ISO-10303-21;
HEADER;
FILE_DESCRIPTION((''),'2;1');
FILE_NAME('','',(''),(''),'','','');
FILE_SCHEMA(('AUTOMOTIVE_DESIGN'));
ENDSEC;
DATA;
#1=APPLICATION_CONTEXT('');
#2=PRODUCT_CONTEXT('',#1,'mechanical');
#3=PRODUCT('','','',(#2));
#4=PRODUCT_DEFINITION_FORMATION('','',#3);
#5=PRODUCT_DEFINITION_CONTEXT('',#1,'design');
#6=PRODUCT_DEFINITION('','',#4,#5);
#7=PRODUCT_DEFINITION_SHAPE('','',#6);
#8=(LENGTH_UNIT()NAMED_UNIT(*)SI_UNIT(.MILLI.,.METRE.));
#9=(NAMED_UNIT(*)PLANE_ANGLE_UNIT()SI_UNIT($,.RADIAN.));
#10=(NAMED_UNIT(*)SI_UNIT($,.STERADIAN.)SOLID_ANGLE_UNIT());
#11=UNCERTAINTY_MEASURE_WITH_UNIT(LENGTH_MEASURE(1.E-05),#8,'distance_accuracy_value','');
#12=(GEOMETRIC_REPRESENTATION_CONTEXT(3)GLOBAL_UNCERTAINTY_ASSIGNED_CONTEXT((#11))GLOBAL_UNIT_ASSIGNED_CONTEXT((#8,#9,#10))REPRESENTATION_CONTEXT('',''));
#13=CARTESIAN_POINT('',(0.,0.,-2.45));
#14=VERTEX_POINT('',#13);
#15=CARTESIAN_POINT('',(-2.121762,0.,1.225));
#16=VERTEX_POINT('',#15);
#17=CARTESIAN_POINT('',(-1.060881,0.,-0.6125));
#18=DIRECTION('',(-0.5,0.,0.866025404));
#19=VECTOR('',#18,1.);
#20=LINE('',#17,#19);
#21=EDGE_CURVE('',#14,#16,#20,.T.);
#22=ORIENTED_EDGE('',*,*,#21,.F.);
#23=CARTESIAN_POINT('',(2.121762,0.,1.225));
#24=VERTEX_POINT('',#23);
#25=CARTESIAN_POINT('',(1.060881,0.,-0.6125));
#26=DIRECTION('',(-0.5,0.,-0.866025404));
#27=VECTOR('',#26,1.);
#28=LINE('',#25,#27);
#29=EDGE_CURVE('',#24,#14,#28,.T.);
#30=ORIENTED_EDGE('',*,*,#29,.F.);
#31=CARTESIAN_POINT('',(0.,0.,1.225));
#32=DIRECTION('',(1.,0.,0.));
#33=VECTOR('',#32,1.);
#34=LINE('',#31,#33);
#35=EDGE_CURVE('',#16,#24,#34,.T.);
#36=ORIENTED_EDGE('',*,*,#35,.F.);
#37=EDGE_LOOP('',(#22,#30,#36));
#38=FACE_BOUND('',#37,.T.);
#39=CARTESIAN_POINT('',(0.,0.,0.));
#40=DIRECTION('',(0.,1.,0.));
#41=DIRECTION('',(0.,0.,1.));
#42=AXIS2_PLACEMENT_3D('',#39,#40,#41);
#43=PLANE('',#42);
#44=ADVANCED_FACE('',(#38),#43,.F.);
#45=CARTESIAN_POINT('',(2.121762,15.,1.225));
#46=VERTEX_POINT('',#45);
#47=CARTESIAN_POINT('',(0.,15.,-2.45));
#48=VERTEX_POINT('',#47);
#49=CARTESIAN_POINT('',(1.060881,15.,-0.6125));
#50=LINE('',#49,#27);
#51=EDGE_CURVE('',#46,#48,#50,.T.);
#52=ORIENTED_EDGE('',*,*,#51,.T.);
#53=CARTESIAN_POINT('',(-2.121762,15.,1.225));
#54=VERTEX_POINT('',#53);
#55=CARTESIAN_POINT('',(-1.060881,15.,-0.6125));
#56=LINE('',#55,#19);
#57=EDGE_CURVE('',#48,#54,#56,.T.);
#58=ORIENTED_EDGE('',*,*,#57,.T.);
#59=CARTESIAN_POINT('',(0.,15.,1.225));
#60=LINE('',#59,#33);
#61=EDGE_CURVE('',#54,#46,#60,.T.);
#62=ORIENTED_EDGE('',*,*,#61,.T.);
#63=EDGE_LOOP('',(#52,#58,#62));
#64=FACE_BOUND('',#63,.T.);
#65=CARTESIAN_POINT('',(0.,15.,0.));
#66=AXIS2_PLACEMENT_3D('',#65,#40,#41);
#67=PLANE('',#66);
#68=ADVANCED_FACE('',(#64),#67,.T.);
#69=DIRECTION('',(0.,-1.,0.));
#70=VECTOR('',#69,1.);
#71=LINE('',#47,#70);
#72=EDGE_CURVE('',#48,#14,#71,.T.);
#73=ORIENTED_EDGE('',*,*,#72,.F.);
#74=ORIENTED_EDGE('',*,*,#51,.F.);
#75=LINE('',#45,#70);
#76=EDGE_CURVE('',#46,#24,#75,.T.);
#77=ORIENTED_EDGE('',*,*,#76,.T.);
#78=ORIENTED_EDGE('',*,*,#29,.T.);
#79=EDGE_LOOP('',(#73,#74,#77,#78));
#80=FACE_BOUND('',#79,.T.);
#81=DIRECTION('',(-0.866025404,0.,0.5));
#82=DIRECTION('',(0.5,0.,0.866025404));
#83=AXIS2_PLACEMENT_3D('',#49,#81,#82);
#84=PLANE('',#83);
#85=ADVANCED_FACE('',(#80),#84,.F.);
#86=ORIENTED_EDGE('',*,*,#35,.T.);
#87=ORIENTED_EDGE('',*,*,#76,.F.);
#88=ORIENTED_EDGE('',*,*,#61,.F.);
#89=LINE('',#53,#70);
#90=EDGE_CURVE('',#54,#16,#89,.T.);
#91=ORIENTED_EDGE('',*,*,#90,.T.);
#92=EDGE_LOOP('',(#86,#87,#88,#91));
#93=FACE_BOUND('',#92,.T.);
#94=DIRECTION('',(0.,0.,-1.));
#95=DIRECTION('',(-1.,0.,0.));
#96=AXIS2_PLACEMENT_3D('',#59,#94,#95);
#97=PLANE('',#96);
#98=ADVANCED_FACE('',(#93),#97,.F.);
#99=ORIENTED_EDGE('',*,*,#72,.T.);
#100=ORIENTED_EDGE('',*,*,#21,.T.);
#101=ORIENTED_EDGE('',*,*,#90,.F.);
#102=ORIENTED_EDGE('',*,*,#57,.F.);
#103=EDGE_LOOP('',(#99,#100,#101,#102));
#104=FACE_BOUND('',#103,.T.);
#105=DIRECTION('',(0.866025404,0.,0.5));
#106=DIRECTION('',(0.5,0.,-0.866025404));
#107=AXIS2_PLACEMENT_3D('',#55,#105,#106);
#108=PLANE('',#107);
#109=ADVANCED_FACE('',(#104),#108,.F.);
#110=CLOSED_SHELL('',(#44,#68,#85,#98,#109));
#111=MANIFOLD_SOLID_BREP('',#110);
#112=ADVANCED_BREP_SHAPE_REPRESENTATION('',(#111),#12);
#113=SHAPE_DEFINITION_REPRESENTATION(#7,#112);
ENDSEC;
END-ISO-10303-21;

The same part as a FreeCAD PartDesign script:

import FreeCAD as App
import Part
import Sketcher
Q = App.Units.Quantity


def add_polygon(sketch, points):
    """Adds a closed chain of lines whose ends are joined by coincident constraints."""
    first, n = sketch.GeometryCount, len(points)
    for a, b in zip(points, points[1:] + points[:1]):
        sketch.addGeometry(Part.LineSegment(App.Vector(*a, 0), App.Vector(*b, 0)), False)
    for i in range(n):
        sketch.addConstraint(Sketcher.Constraint("Coincident", first + i, 2, first + (i + 1) % n, 1))

doc = App.newDocument("Part")
body = doc.addObject("PartDesign::Body", "Body")

# Sketch on XZ plane
sketch1 = body.newObject("Sketcher::SketchObject", "Sketch")
sketch1.AttachmentSupport = (doc.getObject("XZ_Plane"), [""])
sketch1.MapMode = "FlatFace"
add_polygon(sketch1, [(-2.1, 1.2), (2.1, 1.2), (0, -2.5)])  # lines 0-2
sketch1.addConstraint(Sketcher.Constraint("Horizontal", 0))
sketch1.addConstraint(Sketcher.Constraint("PointOnObject", 1, 2, -2))
sketch1.addConstraint(Sketcher.Constraint("Equal", 1, 2))
sketch1.addConstraint(Sketcher.Constraint("Angle", 1, Q("-120 deg")))
sketch1.addConstraint(Sketcher.Constraint("DistanceY", 1, 2, -1, 1, Q("2.45 mm")))
sketch1.addConstraint(Sketcher.Constraint("DistanceY", -1, 1, 0, 2, Q("1.225 mm")))
pad1 = body.newObject("PartDesign::Pad", "Pad")
pad1.Profile = sketch1
pad1.Length = 15
pad1.Reversed = True

doc.recompute()
